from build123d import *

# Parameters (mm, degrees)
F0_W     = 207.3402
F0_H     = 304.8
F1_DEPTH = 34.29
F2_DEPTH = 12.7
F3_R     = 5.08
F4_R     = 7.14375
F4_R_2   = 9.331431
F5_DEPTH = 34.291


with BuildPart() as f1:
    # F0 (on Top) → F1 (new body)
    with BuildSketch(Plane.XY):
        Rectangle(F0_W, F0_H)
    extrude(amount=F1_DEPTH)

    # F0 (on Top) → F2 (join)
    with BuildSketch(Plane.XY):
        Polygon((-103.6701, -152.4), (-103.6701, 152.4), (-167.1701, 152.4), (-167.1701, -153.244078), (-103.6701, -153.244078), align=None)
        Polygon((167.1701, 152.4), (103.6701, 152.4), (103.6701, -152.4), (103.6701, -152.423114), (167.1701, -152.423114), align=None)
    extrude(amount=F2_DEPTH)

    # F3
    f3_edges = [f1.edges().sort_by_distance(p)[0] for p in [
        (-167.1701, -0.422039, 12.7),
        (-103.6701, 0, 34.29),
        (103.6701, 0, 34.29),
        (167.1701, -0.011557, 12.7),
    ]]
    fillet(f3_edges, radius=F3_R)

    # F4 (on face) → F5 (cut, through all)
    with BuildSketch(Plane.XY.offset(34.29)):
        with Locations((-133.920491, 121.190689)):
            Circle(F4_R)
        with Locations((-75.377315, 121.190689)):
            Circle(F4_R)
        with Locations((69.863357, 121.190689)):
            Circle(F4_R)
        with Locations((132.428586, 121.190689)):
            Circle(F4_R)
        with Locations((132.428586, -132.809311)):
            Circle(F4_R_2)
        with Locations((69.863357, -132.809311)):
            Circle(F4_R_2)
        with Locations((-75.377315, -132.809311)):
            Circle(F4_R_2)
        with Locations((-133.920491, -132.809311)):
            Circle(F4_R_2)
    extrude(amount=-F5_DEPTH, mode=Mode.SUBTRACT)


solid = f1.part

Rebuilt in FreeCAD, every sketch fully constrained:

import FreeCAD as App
import Part
import Sketcher
Q = App.Units.Quantity


def edges_at(feature, points):
    """Names of the edges that pass closest to the given points."""
    edges = feature.Shape.Edges
    near = lambda p: min(range(len(edges)), key=lambda i: edges[i].distToShape(Part.Vertex(*p))[0])
    return sorted({f"Edge{near(p) + 1}" for p in points})

doc = App.newDocument("Part")
params = doc.addObject("Spreadsheet::Sheet", "Params")
for row, (alias, value) in enumerate([
    ("sketch1_height", "12 in"),
    ("sketch1_width", "8.163 in"),
    ("pad1_length", "1.35 in"),
    ("sketch2_width", "2.5 in"),
    ("pad2_length", "0.5 in"),
    ("fillet_radius", "0.2 in"),
    ("sketch3_diameter", "0.5625 in"),
], start=1):
    params.set(f"A{row}", alias)
    params.set(f"B{row}", "=" + value)
    params.setAlias(f"B{row}", alias)

body = doc.addObject("PartDesign::Body", "Body")

sketch1 = body.newObject("Sketcher::SketchObject", "Sketch")
sketch1.AttachmentSupport = (doc.getObject("XY_Plane"), [""])
sketch1.MapMode = "FlatFace"
sketch1.addGeometry([
    Part.LineSegment(App.Vector(-103.6701, 152.4, 0), App.Vector(-103.6701, -152.4, 0)),
    Part.LineSegment(App.Vector(-103.6701, -152.4, 0), App.Vector(103.6701, -152.4, 0)),
    Part.LineSegment(App.Vector(103.6701, -152.4, 0), App.Vector(103.6701, 152.4, 0)),
    Part.LineSegment(App.Vector(103.6701, 152.4, 0), App.Vector(-103.6701, 152.4, 0)),
], False)
sketch1.addConstraint([
    Sketcher.Constraint("Coincident", 0, 2, 1, 1),
    Sketcher.Constraint("Coincident", 1, 2, 2, 1),
    Sketcher.Constraint("Coincident", 2, 2, 3, 1),
    Sketcher.Constraint("Coincident", 3, 2, 0, 1),
    Sketcher.Constraint("Vertical", 0),
    Sketcher.Constraint("Horizontal", 1),
    Sketcher.Constraint("Vertical", 2),
    Sketcher.Constraint("Horizontal", 3),
    Sketcher.Constraint("Symmetric", 0, 2, 2, 2, -1, 1),
    Sketcher.Constraint("DistanceY", 0, 2, 0, 1, Q("12 in")),
    Sketcher.Constraint("DistanceX", 1, 1, 1, 2, Q("8.163 in")),
])
sketch1.setExpression("Constraints[9]", "Params.sketch1_height")
sketch1.setExpression("Constraints[10]", "Params.sketch1_width")
pad1 = body.newObject("PartDesign::Pad", "Pad")
pad1.Profile = sketch1
pad1.setExpression("Length", "Params.pad1_length")

sketch2 = body.newObject("Sketcher::SketchObject", "Sketch001")
sketch2.AttachmentSupport = (doc.getObject("XY_Plane"), [""])
sketch2.MapMode = "FlatFace"
sketch2.addGeometry([
    Part.LineSegment(App.Vector(-103.6701, 152.4, 0), App.Vector(-167.1701, 152.4, 0)),
    Part.LineSegment(App.Vector(-167.1701, 152.4, 0), App.Vector(-167.1701, -153.244078, 0)),
    Part.LineSegment(App.Vector(-167.1701, -153.244078, 0), App.Vector(-103.6701, -153.244078, 0)),
    Part.LineSegment(App.Vector(-103.6701, -153.244078, 0), App.Vector(-103.6701, 152.4, 0)),
    Part.LineSegment(App.Vector(167.1701, 152.4, 0), App.Vector(103.6701, 152.4, 0)),
    Part.LineSegment(App.Vector(103.6701, 152.4, 0), App.Vector(103.6701, -152.423114, 0)),
    Part.LineSegment(App.Vector(103.6701, -152.423114, 0), App.Vector(167.1701, -152.423114, 0)),
    Part.LineSegment(App.Vector(167.1701, -152.423114, 0), App.Vector(167.1701, 152.4, 0)),
], False)
sketch2.addConstraint([
    Sketcher.Constraint("Coincident", 0, 2, 1, 1),
    Sketcher.Constraint("Coincident", 1, 2, 2, 1),
    Sketcher.Constraint("Coincident", 2, 2, 3, 1),
    Sketcher.Constraint("Coincident", 3, 2, 0, 1),
    Sketcher.Constraint("Coincident", 4, 2, 5, 1),
    Sketcher.Constraint("Coincident", 5, 2, 6, 1),
    Sketcher.Constraint("Coincident", 6, 2, 7, 1),
    Sketcher.Constraint("Coincident", 7, 2, 4, 1),
    Sketcher.Constraint("Horizontal", 0),
    Sketcher.Constraint("Vertical", 1),
    Sketcher.Constraint("Horizontal", 2),
    Sketcher.Constraint("Vertical", 3),
    Sketcher.Constraint("Horizontal", 4),
    Sketcher.Constraint("Vertical", 5),
    Sketcher.Constraint("Horizontal", 6),
    Sketcher.Constraint("Vertical", 7),
    Sketcher.Constraint("Symmetric", 3, 2, 4, 2, -2),
    Sketcher.Constraint("Equal", 2, 4),
    Sketcher.Constraint("DistanceX", 0, 2, 0, 1, Q("2.5 in")),
    Sketcher.Constraint("DistanceY", -1, 1, 0, 2, Q("6 in")),
    Sketcher.Constraint("DistanceX", 3, 2, 4, 2, Q("8.163 in")),
    Sketcher.Constraint("DistanceY", 1, 2, 1, 1, 305.644078),
    Sketcher.Constraint("DistanceY", 5, 2, 5, 1, 304.823114),
])
sketch2.setExpression("Constraints[18]", "Params.sketch2_width")
pad2 = body.newObject("PartDesign::Pad", "Pad001")
pad2.Profile = sketch2
pad2.setExpression("Length", "Params.pad2_length")
doc.recompute()

fillet = body.newObject("PartDesign::Fillet", "Fillet")
fillet.Base = (pad2, edges_at(pad2, [
    (-167.17, -0.422, 12.7),
    (-103.67, 0, 34.29),
    (103.67, 0, 34.29),
    (167.17, -0.012, 12.7),
]))
fillet.setExpression("Radius", "Params.fillet_radius")

sketch3 = body.newObject("Sketcher::SketchObject", "Sketch002")
sketch3.AttachmentSupport = (doc.getObject("XY_Plane"), [""])
sketch3.MapMode = "FlatFace"
sketch3.AttachmentOffset = App.Placement(App.Vector(0, 0, 1.35 * 25.4), App.Rotation())
sketch3.addGeometry([
    Part.Circle(App.Vector(-133.920491, 121.190689, 0), App.Vector(0, 0, 1), 7.14375),
    Part.Circle(App.Vector(-75.377315, 121.190689, 0), App.Vector(0, 0, 1), 7.14375),
    Part.Circle(App.Vector(69.863357, 121.190689, 0), App.Vector(0, 0, 1), 7.14375),
    Part.Circle(App.Vector(132.428586, 121.190689, 0), App.Vector(0, 0, 1), 7.14375),
    Part.Circle(App.Vector(132.428586, -132.809311, 0), App.Vector(0, 0, 1), 9.331431),
    Part.Circle(App.Vector(69.863357, -132.809311, 0), App.Vector(0, 0, 1), 9.331431),
    Part.Circle(App.Vector(-75.377315, -132.809311, 0), App.Vector(0, 0, 1), 9.331431),
    Part.Circle(App.Vector(-133.920491, -132.809311, 0), App.Vector(0, 0, 1), 9.331431),
], False)
sketch3.addConstraint([
    Sketcher.Constraint("Equal", 0, 1),
    Sketcher.Constraint("Equal", 1, 2),
    Sketcher.Constraint("Equal", 2, 3),
    Sketcher.Constraint("Equal", 4, 5),
    Sketcher.Constraint("Equal", 5, 6),
    Sketcher.Constraint("Equal", 6, 7),
    Sketcher.Constraint("Horizontal", 0, 3, 1, 3),
    Sketcher.Constraint("Horizontal", 1, 3, 2, 3),
    Sketcher.Constraint("Horizontal", 2, 3, 3, 3),
    Sketcher.Constraint("Horizontal", 4, 3, 5, 3),
    Sketcher.Constraint("Horizontal", 5, 3, 6, 3),
    Sketcher.Constraint("Horizontal", 6, 3, 7, 3),
    Sketcher.Constraint("Vertical", 3, 3, 4, 3),
    Sketcher.Constraint("Vertical", 2, 3, 5, 3),
    Sketcher.Constraint("Vertical", 1, 3, 6, 3),
    Sketcher.Constraint("Vertical", 0, 3, 7, 3),
    Sketcher.Constraint("Diameter", 0, Q("0.5625 in")),
    Sketcher.Constraint("DistanceY", 4, 3, 3, 3, Q("10 in")),
    Sketcher.Constraint("Diameter", 4, 18.662862),
    Sketcher.Constraint("DistanceX", 1, 3, 3, 3, 207.805901),
    Sketcher.Constraint("DistanceX", 0, 3, -1, 1, 133.920491),
    Sketcher.Constraint("DistanceY", -1, 1, 0, 3, 121.190689),
    Sketcher.Constraint("DistanceX", 1, 3, 2, 3, 145.240672),
    Sketcher.Constraint("DistanceX", 1, 3, -1, 1, 75.377315),
])
sketch3.setExpression("Constraints[16]", "Params.sketch3_diameter")
pocket1 = body.newObject("PartDesign::Pocket", "Pocket")
pocket1.Profile = sketch3
pocket1.Type = "ThroughAll"

doc.recompute()
